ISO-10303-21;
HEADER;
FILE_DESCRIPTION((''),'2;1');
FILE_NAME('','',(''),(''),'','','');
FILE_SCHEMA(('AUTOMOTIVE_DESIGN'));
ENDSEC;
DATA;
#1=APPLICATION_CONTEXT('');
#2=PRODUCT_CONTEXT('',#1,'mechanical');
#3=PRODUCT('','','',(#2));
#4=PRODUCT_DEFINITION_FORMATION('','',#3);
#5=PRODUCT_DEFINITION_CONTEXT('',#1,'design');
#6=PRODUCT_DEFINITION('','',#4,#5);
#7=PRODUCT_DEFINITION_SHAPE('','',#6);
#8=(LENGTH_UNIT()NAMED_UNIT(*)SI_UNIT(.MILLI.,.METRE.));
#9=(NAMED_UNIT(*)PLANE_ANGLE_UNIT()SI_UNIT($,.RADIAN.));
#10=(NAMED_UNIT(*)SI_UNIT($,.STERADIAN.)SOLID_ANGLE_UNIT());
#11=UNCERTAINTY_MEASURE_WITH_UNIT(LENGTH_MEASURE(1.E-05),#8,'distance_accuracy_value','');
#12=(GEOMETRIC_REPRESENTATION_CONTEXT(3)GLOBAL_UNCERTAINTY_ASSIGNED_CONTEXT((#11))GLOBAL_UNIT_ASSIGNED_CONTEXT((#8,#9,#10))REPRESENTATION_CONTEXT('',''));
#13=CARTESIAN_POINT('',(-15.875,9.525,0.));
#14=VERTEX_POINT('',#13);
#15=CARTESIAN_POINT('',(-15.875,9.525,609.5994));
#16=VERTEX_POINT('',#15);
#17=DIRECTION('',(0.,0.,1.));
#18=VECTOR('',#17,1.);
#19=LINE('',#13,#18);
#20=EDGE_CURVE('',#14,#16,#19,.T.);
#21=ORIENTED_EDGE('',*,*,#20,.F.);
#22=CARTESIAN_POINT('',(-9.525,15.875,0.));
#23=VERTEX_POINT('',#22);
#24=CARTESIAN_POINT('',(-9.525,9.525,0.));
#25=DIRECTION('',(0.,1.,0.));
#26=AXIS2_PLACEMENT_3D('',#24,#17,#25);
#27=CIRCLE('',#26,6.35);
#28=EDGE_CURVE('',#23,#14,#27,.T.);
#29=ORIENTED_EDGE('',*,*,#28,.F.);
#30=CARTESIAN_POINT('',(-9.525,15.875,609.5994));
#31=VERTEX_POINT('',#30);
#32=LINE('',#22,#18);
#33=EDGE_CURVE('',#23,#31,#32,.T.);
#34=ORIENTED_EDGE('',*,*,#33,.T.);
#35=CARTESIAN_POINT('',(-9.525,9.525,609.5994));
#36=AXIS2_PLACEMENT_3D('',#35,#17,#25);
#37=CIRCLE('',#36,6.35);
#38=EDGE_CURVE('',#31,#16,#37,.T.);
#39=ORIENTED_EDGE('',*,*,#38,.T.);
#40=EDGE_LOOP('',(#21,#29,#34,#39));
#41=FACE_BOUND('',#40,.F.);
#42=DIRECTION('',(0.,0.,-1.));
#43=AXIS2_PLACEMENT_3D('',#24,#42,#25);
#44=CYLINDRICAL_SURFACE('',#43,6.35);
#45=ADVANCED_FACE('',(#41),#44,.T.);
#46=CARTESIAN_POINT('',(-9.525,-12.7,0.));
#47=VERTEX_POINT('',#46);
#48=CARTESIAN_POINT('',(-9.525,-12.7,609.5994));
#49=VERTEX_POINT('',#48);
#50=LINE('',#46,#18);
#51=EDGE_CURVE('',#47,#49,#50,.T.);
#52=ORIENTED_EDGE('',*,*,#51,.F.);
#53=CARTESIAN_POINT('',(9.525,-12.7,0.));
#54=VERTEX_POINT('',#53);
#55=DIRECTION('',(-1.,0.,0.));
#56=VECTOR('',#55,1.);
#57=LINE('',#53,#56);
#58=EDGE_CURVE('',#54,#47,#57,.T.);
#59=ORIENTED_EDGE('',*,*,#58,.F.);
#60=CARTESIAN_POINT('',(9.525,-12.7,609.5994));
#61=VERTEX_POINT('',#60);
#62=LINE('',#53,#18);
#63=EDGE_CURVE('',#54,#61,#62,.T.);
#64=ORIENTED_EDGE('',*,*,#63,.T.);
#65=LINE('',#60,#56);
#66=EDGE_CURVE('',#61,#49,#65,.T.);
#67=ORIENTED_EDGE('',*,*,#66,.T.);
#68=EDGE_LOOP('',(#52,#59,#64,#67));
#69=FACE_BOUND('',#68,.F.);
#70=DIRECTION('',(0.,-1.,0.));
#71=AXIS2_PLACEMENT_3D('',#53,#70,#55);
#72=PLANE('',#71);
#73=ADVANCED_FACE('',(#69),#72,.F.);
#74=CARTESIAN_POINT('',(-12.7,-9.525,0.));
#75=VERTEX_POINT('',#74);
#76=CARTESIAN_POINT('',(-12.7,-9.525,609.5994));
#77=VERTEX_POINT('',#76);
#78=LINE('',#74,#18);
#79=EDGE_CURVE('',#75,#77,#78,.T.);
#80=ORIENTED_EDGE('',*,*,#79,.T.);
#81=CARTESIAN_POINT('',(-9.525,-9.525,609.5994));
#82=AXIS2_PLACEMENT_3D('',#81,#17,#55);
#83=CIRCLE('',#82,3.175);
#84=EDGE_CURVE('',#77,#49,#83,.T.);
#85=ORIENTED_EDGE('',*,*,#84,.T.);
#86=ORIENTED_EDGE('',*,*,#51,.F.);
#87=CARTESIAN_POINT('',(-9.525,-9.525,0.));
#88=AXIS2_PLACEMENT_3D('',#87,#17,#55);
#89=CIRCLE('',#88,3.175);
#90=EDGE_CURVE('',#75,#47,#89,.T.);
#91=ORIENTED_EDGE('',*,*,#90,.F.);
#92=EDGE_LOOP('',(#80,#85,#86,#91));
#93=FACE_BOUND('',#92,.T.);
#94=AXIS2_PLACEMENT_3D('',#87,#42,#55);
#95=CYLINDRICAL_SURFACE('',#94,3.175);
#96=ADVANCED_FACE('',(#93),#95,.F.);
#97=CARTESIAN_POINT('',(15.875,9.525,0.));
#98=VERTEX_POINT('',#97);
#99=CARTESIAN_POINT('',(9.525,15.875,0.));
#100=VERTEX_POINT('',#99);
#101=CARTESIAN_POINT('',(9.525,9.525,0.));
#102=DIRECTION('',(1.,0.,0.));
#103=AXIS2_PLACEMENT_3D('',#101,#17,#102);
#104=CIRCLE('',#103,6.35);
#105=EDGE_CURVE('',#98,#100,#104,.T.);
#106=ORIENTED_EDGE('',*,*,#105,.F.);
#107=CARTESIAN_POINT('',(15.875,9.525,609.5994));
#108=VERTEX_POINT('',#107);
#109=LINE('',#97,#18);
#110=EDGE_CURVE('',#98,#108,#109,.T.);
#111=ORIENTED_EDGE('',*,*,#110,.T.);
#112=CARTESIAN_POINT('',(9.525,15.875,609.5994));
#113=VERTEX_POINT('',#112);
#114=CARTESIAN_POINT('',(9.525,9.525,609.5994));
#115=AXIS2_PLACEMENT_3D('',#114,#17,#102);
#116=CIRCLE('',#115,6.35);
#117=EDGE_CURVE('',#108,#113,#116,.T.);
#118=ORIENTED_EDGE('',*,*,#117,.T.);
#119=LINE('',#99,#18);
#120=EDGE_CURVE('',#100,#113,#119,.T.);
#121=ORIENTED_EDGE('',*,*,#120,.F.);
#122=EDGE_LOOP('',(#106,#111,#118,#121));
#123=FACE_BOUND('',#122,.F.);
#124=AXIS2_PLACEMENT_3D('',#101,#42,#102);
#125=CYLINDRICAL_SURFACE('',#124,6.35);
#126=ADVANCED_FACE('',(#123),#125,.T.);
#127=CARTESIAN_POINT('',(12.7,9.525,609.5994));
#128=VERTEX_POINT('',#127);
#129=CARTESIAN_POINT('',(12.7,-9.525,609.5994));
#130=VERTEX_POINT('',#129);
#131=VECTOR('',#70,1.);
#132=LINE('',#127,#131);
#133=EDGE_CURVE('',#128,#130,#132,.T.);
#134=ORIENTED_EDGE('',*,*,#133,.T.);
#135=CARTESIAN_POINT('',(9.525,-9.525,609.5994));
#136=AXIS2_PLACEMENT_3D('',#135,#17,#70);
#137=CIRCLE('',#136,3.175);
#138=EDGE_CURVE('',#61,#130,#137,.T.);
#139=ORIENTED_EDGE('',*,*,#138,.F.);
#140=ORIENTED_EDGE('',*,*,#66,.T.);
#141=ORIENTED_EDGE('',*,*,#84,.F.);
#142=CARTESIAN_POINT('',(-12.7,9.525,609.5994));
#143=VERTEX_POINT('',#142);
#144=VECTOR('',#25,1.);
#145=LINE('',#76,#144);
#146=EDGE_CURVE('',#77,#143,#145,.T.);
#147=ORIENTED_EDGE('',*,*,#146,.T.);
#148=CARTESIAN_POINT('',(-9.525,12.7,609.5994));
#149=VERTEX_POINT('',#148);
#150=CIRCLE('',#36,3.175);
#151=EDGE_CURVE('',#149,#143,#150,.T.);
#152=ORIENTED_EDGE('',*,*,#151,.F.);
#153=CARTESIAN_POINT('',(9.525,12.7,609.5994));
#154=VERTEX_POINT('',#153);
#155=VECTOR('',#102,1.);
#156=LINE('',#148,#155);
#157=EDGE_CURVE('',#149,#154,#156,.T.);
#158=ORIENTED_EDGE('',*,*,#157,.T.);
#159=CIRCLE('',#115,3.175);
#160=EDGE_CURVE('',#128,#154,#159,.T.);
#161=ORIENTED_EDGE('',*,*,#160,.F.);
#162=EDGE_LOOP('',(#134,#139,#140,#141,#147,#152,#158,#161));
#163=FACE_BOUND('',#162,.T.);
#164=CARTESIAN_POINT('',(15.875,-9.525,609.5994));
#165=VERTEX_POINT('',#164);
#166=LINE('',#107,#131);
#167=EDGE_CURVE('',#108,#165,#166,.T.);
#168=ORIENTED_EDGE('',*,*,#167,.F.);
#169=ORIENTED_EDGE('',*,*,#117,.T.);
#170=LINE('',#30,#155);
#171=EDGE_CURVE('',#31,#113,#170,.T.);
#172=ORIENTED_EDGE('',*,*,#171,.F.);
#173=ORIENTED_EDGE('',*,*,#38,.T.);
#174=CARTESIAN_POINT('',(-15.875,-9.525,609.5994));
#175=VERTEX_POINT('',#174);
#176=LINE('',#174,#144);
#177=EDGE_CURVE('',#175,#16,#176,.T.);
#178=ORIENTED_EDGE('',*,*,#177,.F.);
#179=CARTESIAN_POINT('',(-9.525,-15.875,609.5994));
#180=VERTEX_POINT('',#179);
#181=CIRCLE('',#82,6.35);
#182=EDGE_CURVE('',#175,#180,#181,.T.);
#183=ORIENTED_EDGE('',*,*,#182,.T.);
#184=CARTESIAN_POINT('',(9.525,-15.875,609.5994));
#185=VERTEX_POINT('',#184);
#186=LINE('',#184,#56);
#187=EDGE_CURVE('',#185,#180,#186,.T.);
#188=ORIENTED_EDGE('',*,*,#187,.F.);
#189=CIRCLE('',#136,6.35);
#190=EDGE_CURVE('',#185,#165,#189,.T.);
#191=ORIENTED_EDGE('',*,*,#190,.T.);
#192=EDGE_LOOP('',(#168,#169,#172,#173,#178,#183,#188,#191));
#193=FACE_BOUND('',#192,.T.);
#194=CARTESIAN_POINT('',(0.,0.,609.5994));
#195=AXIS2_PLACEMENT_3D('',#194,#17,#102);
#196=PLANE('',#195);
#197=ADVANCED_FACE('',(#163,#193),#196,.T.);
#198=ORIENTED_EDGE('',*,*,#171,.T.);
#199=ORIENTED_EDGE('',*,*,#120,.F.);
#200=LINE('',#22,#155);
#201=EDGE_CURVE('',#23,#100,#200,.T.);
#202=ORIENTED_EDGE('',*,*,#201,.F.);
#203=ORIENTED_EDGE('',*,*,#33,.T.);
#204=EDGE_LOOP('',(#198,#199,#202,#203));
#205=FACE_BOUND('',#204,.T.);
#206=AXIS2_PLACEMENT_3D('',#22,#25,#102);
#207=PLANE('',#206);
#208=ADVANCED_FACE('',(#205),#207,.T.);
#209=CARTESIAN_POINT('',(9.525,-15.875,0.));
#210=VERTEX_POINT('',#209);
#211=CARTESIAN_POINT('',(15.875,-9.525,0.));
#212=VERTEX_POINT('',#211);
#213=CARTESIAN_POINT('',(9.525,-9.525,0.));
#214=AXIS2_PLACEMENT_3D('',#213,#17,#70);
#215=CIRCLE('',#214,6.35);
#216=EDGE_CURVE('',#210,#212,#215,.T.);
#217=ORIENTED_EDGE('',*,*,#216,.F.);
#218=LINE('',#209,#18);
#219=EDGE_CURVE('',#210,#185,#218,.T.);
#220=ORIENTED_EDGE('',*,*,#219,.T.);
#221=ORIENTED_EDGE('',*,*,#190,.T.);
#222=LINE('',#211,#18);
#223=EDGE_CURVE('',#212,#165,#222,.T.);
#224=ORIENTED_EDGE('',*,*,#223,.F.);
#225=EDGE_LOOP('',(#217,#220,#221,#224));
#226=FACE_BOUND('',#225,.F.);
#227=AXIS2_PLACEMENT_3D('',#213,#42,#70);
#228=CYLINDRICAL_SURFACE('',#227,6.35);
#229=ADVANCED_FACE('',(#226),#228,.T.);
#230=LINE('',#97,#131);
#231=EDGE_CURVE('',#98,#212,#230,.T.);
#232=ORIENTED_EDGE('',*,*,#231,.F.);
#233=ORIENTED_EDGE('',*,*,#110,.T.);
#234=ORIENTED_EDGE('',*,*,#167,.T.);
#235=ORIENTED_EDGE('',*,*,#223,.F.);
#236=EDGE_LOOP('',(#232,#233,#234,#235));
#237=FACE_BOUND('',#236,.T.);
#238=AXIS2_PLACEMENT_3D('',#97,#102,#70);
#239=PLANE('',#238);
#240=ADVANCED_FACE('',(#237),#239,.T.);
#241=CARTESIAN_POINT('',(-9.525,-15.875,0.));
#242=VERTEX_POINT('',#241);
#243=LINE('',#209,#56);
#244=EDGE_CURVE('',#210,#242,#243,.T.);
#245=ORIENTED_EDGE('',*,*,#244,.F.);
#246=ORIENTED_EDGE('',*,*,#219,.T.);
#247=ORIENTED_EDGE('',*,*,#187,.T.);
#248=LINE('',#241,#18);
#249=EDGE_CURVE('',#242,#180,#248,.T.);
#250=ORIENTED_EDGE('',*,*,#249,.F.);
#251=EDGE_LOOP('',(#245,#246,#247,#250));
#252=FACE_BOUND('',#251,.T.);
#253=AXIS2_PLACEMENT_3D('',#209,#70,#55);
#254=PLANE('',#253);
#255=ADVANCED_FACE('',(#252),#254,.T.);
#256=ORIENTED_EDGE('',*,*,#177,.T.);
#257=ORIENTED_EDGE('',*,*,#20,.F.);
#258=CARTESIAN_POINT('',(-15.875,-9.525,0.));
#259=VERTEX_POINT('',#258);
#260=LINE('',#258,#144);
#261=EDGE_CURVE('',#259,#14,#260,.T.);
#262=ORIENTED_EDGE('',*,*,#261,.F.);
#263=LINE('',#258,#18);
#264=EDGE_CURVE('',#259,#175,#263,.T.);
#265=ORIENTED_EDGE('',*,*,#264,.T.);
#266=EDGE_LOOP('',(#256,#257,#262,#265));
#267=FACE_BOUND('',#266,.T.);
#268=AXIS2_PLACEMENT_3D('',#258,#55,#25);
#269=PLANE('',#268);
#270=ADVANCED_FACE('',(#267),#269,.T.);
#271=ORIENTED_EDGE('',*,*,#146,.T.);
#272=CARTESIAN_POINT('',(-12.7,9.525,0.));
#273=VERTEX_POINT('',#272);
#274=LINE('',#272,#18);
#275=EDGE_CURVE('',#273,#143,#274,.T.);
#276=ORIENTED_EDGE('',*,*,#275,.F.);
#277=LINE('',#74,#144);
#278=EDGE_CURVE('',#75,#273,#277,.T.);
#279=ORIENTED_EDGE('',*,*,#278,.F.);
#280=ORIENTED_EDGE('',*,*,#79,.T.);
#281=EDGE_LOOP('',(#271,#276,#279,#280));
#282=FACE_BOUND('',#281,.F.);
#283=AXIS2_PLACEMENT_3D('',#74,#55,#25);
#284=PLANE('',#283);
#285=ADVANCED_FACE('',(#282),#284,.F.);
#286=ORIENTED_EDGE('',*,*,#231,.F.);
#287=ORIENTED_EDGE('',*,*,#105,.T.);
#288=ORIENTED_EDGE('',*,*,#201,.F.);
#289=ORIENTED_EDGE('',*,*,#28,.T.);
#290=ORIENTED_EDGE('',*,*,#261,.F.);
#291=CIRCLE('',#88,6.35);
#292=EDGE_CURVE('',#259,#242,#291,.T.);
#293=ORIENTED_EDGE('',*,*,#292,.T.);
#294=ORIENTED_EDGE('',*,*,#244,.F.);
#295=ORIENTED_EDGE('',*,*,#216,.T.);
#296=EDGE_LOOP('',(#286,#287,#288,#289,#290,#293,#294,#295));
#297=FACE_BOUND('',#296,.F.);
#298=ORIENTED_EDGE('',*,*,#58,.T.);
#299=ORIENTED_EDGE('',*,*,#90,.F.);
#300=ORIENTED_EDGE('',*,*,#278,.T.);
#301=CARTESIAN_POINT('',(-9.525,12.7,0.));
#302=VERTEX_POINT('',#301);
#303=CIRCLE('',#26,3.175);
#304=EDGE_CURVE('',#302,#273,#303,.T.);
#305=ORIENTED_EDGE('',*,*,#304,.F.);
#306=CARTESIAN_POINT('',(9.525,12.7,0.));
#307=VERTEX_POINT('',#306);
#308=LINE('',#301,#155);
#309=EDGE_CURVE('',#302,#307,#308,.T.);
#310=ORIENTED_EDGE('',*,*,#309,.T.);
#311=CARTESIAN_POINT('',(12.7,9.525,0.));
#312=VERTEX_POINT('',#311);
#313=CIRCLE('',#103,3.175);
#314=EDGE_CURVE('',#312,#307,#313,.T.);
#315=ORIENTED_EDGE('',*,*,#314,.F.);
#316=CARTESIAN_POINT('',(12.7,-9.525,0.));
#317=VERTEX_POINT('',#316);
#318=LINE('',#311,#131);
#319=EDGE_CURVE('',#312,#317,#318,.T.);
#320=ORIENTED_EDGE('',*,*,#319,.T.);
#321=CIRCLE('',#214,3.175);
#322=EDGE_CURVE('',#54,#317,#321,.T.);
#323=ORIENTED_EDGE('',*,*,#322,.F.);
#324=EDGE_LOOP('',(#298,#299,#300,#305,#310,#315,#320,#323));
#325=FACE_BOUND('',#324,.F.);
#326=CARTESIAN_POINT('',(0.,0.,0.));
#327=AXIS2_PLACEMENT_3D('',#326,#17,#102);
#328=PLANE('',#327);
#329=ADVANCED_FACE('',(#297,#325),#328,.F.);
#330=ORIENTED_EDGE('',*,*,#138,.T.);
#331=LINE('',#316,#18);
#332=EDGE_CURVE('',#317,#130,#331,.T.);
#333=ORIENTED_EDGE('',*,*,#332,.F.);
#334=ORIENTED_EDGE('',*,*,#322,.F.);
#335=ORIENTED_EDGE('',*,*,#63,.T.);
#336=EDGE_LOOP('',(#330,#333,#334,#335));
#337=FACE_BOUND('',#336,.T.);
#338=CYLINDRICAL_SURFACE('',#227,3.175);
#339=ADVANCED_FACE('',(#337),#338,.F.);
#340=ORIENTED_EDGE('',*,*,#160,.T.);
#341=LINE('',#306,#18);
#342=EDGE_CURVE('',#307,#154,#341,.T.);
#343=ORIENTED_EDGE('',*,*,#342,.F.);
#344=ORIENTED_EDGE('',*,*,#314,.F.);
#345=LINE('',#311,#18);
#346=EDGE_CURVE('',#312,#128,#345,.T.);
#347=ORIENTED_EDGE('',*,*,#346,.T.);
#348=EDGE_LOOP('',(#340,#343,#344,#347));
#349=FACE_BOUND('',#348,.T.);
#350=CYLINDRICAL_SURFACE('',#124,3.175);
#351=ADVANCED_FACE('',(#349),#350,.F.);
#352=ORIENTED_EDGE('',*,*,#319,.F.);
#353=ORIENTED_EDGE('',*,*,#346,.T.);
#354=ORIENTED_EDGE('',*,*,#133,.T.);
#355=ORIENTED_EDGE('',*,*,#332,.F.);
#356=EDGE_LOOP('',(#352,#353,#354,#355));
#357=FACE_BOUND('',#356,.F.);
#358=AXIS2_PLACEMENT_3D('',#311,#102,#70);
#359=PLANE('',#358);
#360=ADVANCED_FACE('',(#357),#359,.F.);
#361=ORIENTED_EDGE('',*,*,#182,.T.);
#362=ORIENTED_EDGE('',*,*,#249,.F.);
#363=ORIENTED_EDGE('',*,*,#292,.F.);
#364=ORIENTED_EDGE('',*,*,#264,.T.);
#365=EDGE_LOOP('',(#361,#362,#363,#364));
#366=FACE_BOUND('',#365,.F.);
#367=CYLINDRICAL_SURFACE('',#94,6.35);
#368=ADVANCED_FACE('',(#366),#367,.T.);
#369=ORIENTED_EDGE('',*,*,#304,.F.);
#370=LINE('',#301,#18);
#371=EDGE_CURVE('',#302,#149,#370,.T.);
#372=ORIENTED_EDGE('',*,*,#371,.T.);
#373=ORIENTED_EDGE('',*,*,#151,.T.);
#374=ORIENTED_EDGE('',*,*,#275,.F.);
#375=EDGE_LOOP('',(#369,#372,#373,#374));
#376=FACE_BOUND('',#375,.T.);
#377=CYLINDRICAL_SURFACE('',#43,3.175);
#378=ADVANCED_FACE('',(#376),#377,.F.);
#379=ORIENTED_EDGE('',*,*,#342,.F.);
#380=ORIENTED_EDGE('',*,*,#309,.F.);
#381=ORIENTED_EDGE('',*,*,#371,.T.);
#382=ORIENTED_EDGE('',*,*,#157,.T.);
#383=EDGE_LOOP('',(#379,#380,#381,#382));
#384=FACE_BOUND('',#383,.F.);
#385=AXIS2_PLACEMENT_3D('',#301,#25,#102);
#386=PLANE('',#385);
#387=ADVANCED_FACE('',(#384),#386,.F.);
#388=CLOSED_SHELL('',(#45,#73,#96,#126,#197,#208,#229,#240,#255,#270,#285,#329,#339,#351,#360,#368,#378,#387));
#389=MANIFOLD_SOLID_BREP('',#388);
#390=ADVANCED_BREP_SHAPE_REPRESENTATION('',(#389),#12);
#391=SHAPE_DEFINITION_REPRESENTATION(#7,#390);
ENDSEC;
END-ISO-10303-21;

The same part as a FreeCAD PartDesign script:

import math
import FreeCAD as App
import Part
import Sketcher
from FreeCAD import Vector
Q = App.Units.Quantity

doc = App.newDocument("Part")
body = doc.addObject("PartDesign::Body", "Body")

sketch1 = doc.addObject("Sketcher::SketchObject", "Sketch")
body.addObject(sketch1)
sketch1.AttachmentSupport = (doc.XY_Plane, [""])
sketch1.MapMode = "FlatFace"
sketch1.addGeometry([
    Part.LineSegment(Vector(-15.9, 9.5, 0), Vector(-15.9, -9.5, 0)),
    Part.ArcOfCircle(Part.Circle(Vector(-9.5, -9.5, 0), Vector(0, 0, 1), 6.3), math.radians(180), math.radians(270)),
    Part.LineSegment(Vector(-9.5, -15.9, 0), Vector(9.5, -15.9, 0)),
    Part.ArcOfCircle(Part.Circle(Vector(9.5, -9.5, 0), Vector(0, 0, 1), 6.3), math.radians(-90), math.radians(0)),
    Part.LineSegment(Vector(15.9, -9.5, 0), Vector(15.9, 9.5, 0)),
    Part.ArcOfCircle(Part.Circle(Vector(9.5, 9.5, 0), Vector(0, 0, 1), 6.3), math.radians(0), math.radians(90)),
    Part.LineSegment(Vector(9.5, 15.9, 0), Vector(-9.5, 15.9, 0)),
    Part.ArcOfCircle(Part.Circle(Vector(-9.5, 9.5, 0), Vector(0, 0, 1), 6.3), math.radians(90), math.radians(180)),
    Part.ArcOfCircle(Part.Circle(Vector(-9.5, 9.5, 0), Vector(0, 0, 1), 3.2), math.radians(90), math.radians(180)),
    Part.LineSegment(Vector(-9.5, 12.7, 0), Vector(9.5, 12.7, 0)),
    Part.ArcOfCircle(Part.Circle(Vector(9.5, 9.5, 0), Vector(0, 0, 1), 3.2), math.radians(0), math.radians(90)),
    Part.LineSegment(Vector(12.7, 9.5, 0), Vector(12.7, -9.5, 0)),
    Part.ArcOfCircle(Part.Circle(Vector(9.5, -9.5, 0), Vector(0, 0, 1), 3.2), math.radians(-90), math.radians(0)),
    Part.LineSegment(Vector(9.5, -12.7, 0), Vector(-9.5, -12.7, 0)),
    Part.ArcOfCircle(Part.Circle(Vector(-9.5, -9.5, 0), Vector(0, 0, 1), 3.2), math.radians(180), math.radians(270)),
    Part.LineSegment(Vector(-12.7, -9.5, 0), Vector(-12.7, 9.5, 0)),
], False)
sketch1.addConstraint([
    Sketcher.Constraint("Tangent", 0, 2, 1, 1),
    Sketcher.Constraint("Tangent", 1, 2, 2, 1),
    Sketcher.Constraint("Tangent", 2, 2, 3, 1),
    Sketcher.Constraint("Tangent", 3, 2, 4, 1),
    Sketcher.Constraint("Tangent", 4, 2, 5, 1),
    Sketcher.Constraint("Tangent", 5, 2, 6, 1),
    Sketcher.Constraint("Tangent", 6, 2, 7, 1),
    Sketcher.Constraint("Tangent", 7, 2, 0, 1),
    Sketcher.Constraint("Tangent", 8, 1, 9, 1),
    Sketcher.Constraint("Tangent", 9, 2, 10, 2),
    Sketcher.Constraint("Tangent", 10, 1, 11, 1),
    Sketcher.Constraint("Tangent", 11, 2, 12, 2),
    Sketcher.Constraint("Tangent", 12, 1, 13, 1),
    Sketcher.Constraint("Tangent", 13, 2, 14, 2),
    Sketcher.Constraint("Tangent", 14, 1, 15, 1),
    Sketcher.Constraint("Tangent", 15, 2, 8, 2),
    Sketcher.Constraint("Vertical", 0),
    Sketcher.Constraint("Horizontal", 2),
    Sketcher.Constraint("Vertical", 4),
    Sketcher.Constraint("Horizontal", 6),
    Sketcher.Constraint("Horizontal", 9),
    Sketcher.Constraint("Vertical", 11),
    Sketcher.Constraint("Horizontal", 13),
    Sketcher.Constraint("Vertical", 15),
    Sketcher.Constraint("Coincident", 8, 3, 7, 3),
    Sketcher.Constraint("Coincident", 10, 3, 5, 3),
    Sketcher.Constraint("Coincident", 12, 3, 3, 3),
    Sketcher.Constraint("Equal", 1, 3),
    Sketcher.Constraint("Equal", 3, 5),
    Sketcher.Constraint("Equal", 5, 7),
    Sketcher.Constraint("Equal", 12, 14),
    Sketcher.Constraint("Symmetric", 1, 3, 5, 3, -1, 1),
    Sketcher.Constraint("Equal", 13, 0),
    Sketcher.Constraint("Radius", 1, Q("0.25 in")),
    Sketcher.Constraint("Radius", 8, Q("0.125 in")),
    Sketcher.Constraint("DistanceX", 0, 2, -1, 1, Q("0.625 in")),
])
pad1 = doc.addObject("PartDesign::Pad", "Pad")
body.addObject(pad1)
pad1.Profile = sketch1
pad1.Length = 609.5994

doc.recompute()
